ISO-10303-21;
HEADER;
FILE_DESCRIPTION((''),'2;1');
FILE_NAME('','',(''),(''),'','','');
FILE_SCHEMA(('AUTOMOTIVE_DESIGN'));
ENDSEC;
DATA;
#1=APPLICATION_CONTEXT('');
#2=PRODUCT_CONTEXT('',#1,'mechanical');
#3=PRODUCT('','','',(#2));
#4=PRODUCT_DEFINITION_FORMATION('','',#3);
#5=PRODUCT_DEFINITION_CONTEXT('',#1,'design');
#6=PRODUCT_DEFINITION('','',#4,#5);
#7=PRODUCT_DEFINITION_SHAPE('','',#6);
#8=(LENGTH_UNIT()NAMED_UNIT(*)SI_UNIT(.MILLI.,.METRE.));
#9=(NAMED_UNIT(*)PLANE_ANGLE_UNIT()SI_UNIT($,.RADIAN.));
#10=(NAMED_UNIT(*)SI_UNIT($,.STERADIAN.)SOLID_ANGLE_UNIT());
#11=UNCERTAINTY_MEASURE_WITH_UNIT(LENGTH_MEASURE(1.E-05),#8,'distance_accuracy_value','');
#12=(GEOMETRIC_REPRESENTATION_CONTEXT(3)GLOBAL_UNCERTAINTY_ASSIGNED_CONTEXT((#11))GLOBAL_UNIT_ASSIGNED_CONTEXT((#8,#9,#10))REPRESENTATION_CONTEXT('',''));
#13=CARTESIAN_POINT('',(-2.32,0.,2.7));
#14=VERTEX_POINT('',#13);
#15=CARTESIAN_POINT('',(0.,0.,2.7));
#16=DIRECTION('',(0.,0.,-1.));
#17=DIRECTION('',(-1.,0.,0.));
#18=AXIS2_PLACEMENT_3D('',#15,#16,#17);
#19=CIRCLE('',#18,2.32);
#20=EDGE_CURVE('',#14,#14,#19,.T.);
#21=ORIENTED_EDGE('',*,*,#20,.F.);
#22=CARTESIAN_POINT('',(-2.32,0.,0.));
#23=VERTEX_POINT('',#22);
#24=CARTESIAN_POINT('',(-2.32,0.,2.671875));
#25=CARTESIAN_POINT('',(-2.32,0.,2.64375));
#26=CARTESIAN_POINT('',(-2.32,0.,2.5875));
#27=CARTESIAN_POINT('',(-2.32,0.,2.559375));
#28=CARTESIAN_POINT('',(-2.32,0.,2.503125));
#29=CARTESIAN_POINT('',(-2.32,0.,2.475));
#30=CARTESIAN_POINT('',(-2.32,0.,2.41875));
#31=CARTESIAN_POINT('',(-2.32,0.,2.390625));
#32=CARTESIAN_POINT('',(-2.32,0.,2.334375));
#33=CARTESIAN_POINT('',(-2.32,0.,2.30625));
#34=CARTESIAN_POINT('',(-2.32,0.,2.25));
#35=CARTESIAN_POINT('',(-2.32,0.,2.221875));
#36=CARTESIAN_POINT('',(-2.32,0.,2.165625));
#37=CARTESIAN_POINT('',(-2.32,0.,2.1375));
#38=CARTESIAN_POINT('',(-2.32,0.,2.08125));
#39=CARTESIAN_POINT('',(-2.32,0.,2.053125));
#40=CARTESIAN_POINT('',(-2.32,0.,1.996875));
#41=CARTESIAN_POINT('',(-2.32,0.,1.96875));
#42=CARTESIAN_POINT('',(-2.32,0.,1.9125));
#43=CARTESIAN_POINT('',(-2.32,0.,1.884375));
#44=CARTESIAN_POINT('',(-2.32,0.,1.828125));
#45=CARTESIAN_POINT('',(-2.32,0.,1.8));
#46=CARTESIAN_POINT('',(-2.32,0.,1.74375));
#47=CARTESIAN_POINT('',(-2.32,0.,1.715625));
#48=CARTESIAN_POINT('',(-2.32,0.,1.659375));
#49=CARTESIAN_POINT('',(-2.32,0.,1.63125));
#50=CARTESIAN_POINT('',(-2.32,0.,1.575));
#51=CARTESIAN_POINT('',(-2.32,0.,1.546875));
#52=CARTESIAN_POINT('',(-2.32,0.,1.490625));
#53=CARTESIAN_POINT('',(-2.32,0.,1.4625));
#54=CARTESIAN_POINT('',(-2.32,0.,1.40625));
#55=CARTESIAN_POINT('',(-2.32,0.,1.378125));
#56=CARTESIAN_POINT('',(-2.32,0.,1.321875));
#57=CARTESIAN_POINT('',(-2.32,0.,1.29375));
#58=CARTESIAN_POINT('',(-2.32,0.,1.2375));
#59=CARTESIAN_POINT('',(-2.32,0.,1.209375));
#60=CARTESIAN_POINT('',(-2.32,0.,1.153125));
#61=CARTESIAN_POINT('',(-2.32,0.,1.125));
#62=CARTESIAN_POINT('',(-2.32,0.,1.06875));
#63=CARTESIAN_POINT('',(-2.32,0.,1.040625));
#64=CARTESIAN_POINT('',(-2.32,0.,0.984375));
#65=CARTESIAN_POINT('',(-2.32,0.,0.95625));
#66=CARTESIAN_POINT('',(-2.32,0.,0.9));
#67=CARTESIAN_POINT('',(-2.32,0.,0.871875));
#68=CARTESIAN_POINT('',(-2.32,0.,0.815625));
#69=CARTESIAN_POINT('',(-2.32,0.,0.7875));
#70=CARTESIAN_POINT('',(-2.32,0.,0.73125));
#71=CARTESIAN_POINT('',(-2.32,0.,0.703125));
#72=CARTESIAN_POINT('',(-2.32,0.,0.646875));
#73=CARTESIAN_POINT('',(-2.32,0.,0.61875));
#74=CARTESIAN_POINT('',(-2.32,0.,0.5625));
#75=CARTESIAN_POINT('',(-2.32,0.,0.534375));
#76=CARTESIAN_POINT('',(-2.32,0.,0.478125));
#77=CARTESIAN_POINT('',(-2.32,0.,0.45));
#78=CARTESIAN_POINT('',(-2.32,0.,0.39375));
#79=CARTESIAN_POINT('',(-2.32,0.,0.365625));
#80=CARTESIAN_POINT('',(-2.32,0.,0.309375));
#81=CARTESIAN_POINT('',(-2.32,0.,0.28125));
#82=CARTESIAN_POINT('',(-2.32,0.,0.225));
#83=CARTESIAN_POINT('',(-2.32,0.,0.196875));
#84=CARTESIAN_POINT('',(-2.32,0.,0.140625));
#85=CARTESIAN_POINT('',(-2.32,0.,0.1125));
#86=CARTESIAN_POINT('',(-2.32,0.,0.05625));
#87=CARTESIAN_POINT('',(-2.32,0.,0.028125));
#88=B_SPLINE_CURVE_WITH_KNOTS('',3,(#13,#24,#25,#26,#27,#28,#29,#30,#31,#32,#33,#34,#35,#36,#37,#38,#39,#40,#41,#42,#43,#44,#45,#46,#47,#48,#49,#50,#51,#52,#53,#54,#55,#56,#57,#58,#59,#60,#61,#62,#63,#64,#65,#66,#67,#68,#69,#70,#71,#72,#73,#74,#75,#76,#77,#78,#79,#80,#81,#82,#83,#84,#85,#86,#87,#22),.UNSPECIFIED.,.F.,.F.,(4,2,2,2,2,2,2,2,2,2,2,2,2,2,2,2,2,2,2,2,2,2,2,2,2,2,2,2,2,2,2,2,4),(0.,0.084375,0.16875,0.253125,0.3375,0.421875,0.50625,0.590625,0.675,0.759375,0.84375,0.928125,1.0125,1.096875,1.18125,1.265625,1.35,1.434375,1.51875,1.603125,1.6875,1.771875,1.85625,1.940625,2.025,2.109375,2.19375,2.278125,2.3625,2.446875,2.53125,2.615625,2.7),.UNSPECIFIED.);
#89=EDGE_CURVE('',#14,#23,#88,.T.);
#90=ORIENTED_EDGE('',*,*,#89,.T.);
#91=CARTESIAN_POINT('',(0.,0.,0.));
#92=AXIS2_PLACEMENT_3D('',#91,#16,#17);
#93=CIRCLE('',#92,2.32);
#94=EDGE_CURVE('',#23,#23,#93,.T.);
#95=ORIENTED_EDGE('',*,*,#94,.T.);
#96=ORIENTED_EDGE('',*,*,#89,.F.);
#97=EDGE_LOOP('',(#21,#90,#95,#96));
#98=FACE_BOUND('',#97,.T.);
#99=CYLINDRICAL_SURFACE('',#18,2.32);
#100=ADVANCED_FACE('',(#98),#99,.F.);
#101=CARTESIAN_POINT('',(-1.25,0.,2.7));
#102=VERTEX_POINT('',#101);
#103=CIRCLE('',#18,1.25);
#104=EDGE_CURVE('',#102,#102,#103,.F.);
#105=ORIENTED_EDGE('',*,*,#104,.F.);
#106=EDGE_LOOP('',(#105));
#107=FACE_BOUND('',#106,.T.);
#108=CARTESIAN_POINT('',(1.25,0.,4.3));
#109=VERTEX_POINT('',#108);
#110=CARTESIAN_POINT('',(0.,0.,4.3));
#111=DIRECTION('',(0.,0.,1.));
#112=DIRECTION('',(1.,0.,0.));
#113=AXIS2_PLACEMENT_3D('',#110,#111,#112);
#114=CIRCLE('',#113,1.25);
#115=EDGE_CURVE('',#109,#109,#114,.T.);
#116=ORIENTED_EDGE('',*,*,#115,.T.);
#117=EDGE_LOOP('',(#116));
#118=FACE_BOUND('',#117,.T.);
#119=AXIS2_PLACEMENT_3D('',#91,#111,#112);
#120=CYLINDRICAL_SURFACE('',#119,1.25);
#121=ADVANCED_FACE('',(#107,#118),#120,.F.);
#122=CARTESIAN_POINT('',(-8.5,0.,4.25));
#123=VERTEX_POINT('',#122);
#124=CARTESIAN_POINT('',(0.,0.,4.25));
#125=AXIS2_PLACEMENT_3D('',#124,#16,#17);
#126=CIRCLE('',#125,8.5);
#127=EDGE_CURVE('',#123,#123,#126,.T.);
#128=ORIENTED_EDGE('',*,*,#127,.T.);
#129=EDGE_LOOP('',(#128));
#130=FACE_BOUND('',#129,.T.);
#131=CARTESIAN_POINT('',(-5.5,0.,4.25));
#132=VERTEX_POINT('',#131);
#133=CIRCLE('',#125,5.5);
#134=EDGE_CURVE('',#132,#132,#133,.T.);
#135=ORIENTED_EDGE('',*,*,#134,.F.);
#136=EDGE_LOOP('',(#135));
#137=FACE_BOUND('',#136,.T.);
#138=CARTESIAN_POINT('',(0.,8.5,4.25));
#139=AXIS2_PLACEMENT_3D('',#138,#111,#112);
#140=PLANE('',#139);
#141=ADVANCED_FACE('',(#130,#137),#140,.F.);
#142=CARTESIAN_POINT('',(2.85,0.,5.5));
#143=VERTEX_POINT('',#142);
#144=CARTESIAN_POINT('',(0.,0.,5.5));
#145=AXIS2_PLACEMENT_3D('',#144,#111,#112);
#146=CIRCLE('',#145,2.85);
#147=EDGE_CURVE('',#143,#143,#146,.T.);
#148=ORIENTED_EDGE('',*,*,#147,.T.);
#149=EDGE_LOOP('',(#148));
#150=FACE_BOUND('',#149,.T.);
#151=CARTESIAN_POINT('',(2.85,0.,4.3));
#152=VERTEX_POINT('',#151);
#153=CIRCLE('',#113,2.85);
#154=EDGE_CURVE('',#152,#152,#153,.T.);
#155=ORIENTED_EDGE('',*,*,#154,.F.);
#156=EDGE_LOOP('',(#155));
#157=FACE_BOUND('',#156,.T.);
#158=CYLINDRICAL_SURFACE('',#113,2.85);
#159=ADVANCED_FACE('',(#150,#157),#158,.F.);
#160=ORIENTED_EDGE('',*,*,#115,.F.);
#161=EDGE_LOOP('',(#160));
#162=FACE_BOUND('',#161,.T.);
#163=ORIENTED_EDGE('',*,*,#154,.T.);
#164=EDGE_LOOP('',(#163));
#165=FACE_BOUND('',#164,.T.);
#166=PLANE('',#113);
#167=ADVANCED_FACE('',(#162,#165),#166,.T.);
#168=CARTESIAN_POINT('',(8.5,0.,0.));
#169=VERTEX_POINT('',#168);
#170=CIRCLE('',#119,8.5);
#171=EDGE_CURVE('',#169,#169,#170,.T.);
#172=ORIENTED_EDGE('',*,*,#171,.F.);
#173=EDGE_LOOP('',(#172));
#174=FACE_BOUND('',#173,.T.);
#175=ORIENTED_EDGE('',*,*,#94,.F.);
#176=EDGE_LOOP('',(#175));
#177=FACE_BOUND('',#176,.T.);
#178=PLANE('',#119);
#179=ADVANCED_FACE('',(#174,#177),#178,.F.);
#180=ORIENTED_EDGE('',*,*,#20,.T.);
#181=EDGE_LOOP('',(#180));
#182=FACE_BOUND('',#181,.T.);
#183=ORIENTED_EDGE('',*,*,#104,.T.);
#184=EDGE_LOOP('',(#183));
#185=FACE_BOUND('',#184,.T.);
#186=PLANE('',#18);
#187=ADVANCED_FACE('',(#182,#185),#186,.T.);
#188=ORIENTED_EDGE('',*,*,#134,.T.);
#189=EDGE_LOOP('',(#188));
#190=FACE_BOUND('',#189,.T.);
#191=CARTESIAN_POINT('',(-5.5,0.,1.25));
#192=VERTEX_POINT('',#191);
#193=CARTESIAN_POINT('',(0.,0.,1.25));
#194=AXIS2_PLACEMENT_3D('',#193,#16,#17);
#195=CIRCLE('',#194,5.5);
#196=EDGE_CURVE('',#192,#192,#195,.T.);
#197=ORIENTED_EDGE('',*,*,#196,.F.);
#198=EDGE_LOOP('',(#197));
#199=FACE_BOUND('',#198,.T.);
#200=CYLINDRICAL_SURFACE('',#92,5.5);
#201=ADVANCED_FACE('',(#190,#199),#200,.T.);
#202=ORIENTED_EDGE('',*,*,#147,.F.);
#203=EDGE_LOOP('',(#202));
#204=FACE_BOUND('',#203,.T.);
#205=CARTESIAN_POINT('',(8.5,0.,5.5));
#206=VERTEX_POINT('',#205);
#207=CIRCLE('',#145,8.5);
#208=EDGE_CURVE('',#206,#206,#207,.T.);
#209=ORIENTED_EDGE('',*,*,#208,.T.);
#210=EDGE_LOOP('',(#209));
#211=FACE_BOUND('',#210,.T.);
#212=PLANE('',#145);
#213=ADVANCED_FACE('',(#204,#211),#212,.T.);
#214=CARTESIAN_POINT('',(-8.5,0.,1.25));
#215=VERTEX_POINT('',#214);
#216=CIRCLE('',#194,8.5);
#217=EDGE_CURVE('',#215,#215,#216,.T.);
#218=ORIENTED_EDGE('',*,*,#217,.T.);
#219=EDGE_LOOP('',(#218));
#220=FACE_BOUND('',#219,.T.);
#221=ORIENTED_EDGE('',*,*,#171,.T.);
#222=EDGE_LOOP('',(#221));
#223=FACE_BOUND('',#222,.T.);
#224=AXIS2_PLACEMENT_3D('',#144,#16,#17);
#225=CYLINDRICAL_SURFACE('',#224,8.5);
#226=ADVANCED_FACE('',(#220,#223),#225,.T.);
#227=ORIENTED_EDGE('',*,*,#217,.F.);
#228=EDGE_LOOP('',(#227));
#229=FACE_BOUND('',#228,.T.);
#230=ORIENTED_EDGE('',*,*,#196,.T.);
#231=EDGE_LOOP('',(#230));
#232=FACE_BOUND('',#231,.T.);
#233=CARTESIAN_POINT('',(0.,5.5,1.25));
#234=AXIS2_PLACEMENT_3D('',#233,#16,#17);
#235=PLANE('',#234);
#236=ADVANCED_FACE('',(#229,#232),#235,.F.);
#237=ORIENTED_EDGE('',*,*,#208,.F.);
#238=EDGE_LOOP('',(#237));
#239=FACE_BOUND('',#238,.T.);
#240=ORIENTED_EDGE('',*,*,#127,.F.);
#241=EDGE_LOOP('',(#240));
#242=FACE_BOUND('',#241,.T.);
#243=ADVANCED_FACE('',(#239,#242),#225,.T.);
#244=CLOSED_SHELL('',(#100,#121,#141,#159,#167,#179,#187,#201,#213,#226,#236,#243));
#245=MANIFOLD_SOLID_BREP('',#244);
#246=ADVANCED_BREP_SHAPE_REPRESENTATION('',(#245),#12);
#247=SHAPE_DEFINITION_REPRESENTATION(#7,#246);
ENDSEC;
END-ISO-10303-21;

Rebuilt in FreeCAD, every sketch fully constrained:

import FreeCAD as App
import Part
import Sketcher
from FreeCAD import Vector


def add_polygon(sketch, points):
    """Adds a closed chain of lines whose ends are joined by coincident constraints."""
    first, n = sketch.GeometryCount, len(points)
    for a, b in zip(points, points[1:] + points[:1]):
        sketch.addGeometry(Part.LineSegment(App.Vector(*a, 0), App.Vector(*b, 0)), False)
    for i in range(n):
        sketch.addConstraint(Sketcher.Constraint("Coincident", first + i, 2, first + (i + 1) % n, 1))

doc = App.newDocument("Part")
body = doc.addObject("PartDesign::Body", "Body")

sketch1 = body.newObject("Sketcher::SketchObject", "Sketch")
sketch1.AttachmentSupport = (doc.getObject("XY_Plane"), [""])
sketch1.MapMode = "FlatFace"
sketch1.addGeometry(Part.Circle(Vector(0, 0, 0), Vector(0, 0, 1), 8.5), False)
sketch1.addConstraint([
    Sketcher.Constraint("Coincident", 0, 3, -1, 1),
    Sketcher.Constraint("Diameter", 0, 17.0),
])
pad1 = body.newObject("PartDesign::Pad", "Pad")
pad1.Profile = sketch1
pad1.Length = 5.5

sketch2 = body.newObject("Sketcher::SketchObject", "Sketch001")
sketch2.AttachmentSupport = (doc.getObject("YZ_Plane"), [""])
sketch2.MapMode = "FlatFace"
add_polygon(sketch2, [(8.5, 5.5), (8.5, 4.25), (5.5, 4.25), (5.5, 1.25), (8.5, 1.25), (8.5, 0), (8.952172, 0), (8.952172, 5.5)])
sketch2.addConstraint([
    Sketcher.Constraint("Vertical", 0),
    Sketcher.Constraint("Horizontal", 1),
    Sketcher.Constraint("Vertical", 2),
    Sketcher.Constraint("Horizontal", 3),
    Sketcher.Constraint("Vertical", 4),
    Sketcher.Constraint("Horizontal", 5),
    Sketcher.Constraint("Vertical", 6),
    Sketcher.Constraint("Horizontal", 7),
    Sketcher.Constraint("PointOnObject", 4, 2, -1),
    Sketcher.Constraint("Vertical", 0, 2, 3, 2),
    Sketcher.Constraint("Equal", 3, 2),
    Sketcher.Constraint("Equal", 0, 4),
    Sketcher.Constraint("DistanceX", 1, 2, 1, 1, 3.0),
    Sketcher.Constraint("DistanceY", 6, 1, 6, 2, 5.5),
    Sketcher.Constraint("DistanceX", -1, 1, 0, 2, 8.5),
    Sketcher.Constraint("DistanceX", 5, 1, 5, 2, 0.452172),
])
groove = body.newObject("PartDesign::Groove", "Groove")
groove.Profile = sketch2
groove.ReferenceAxis = (sketch2, ["V_Axis"])
groove.Angle = 360

sketch3 = body.newObject("Sketcher::SketchObject", "Sketch002")
sketch3.AttachmentSupport = (doc.getObject("XY_Plane"), [""])
sketch3.MapMode = "FlatFace"
sketch3.AttachmentOffset = App.Placement(Vector(0, 0, 5.5), App.Rotation())
sketch3.addGeometry(Part.Circle(Vector(0, 0, 0), Vector(0, 0, 1), 2.85), False)
sketch3.addConstraint([
    Sketcher.Constraint("Coincident", 0, 3, -1, 1),
    Sketcher.Constraint("Diameter", 0, 5.7),
])
pocket1 = body.newObject("PartDesign::Pocket", "Pocket")
pocket1.Profile = sketch3
pocket1.Length = 1.2

sketch4 = body.newObject("Sketcher::SketchObject", "Sketch003")
sketch4.AttachmentSupport = (doc.getObject("XY_Plane"), [""])
sketch4.MapMode = "FlatFace"
sketch4.AttachmentOffset = App.Placement(Vector(0, 0, 5.5), App.Rotation())
sketch4.addGeometry(Part.Circle(Vector(0, 0, 0), Vector(0, 0, 1), 1.25), False)
sketch4.addConstraint([
    Sketcher.Constraint("Coincident", 0, 3, -1, 1),
    Sketcher.Constraint("Diameter", 0, 2.5),
])
pocket2 = body.newObject("PartDesign::Pocket", "Pocket001")
pocket2.Profile = sketch4
pocket2.Type = "ThroughAll"

sketch5 = body.newObject("Sketcher::SketchObject", "Sketch004")
sketch5.AttachmentSupport = (doc.getObject("XY_Plane"), [""])
sketch5.MapMode = "FlatFace"
sketch5.addGeometry(Part.Circle(Vector(0, 0, 0), Vector(0, 0, 1), 2.32), False)
sketch5.addConstraint([
    Sketcher.Constraint("Coincident", 0, 3, -1, 1),
    Sketcher.Constraint("Diameter", 0, 4.64),
])
pocket3 = body.newObject("PartDesign::Pocket", "Pocket002")
pocket3.Profile = sketch5
pocket3.Length = 2.7
pocket3.Reversed = True

doc.recompute()
